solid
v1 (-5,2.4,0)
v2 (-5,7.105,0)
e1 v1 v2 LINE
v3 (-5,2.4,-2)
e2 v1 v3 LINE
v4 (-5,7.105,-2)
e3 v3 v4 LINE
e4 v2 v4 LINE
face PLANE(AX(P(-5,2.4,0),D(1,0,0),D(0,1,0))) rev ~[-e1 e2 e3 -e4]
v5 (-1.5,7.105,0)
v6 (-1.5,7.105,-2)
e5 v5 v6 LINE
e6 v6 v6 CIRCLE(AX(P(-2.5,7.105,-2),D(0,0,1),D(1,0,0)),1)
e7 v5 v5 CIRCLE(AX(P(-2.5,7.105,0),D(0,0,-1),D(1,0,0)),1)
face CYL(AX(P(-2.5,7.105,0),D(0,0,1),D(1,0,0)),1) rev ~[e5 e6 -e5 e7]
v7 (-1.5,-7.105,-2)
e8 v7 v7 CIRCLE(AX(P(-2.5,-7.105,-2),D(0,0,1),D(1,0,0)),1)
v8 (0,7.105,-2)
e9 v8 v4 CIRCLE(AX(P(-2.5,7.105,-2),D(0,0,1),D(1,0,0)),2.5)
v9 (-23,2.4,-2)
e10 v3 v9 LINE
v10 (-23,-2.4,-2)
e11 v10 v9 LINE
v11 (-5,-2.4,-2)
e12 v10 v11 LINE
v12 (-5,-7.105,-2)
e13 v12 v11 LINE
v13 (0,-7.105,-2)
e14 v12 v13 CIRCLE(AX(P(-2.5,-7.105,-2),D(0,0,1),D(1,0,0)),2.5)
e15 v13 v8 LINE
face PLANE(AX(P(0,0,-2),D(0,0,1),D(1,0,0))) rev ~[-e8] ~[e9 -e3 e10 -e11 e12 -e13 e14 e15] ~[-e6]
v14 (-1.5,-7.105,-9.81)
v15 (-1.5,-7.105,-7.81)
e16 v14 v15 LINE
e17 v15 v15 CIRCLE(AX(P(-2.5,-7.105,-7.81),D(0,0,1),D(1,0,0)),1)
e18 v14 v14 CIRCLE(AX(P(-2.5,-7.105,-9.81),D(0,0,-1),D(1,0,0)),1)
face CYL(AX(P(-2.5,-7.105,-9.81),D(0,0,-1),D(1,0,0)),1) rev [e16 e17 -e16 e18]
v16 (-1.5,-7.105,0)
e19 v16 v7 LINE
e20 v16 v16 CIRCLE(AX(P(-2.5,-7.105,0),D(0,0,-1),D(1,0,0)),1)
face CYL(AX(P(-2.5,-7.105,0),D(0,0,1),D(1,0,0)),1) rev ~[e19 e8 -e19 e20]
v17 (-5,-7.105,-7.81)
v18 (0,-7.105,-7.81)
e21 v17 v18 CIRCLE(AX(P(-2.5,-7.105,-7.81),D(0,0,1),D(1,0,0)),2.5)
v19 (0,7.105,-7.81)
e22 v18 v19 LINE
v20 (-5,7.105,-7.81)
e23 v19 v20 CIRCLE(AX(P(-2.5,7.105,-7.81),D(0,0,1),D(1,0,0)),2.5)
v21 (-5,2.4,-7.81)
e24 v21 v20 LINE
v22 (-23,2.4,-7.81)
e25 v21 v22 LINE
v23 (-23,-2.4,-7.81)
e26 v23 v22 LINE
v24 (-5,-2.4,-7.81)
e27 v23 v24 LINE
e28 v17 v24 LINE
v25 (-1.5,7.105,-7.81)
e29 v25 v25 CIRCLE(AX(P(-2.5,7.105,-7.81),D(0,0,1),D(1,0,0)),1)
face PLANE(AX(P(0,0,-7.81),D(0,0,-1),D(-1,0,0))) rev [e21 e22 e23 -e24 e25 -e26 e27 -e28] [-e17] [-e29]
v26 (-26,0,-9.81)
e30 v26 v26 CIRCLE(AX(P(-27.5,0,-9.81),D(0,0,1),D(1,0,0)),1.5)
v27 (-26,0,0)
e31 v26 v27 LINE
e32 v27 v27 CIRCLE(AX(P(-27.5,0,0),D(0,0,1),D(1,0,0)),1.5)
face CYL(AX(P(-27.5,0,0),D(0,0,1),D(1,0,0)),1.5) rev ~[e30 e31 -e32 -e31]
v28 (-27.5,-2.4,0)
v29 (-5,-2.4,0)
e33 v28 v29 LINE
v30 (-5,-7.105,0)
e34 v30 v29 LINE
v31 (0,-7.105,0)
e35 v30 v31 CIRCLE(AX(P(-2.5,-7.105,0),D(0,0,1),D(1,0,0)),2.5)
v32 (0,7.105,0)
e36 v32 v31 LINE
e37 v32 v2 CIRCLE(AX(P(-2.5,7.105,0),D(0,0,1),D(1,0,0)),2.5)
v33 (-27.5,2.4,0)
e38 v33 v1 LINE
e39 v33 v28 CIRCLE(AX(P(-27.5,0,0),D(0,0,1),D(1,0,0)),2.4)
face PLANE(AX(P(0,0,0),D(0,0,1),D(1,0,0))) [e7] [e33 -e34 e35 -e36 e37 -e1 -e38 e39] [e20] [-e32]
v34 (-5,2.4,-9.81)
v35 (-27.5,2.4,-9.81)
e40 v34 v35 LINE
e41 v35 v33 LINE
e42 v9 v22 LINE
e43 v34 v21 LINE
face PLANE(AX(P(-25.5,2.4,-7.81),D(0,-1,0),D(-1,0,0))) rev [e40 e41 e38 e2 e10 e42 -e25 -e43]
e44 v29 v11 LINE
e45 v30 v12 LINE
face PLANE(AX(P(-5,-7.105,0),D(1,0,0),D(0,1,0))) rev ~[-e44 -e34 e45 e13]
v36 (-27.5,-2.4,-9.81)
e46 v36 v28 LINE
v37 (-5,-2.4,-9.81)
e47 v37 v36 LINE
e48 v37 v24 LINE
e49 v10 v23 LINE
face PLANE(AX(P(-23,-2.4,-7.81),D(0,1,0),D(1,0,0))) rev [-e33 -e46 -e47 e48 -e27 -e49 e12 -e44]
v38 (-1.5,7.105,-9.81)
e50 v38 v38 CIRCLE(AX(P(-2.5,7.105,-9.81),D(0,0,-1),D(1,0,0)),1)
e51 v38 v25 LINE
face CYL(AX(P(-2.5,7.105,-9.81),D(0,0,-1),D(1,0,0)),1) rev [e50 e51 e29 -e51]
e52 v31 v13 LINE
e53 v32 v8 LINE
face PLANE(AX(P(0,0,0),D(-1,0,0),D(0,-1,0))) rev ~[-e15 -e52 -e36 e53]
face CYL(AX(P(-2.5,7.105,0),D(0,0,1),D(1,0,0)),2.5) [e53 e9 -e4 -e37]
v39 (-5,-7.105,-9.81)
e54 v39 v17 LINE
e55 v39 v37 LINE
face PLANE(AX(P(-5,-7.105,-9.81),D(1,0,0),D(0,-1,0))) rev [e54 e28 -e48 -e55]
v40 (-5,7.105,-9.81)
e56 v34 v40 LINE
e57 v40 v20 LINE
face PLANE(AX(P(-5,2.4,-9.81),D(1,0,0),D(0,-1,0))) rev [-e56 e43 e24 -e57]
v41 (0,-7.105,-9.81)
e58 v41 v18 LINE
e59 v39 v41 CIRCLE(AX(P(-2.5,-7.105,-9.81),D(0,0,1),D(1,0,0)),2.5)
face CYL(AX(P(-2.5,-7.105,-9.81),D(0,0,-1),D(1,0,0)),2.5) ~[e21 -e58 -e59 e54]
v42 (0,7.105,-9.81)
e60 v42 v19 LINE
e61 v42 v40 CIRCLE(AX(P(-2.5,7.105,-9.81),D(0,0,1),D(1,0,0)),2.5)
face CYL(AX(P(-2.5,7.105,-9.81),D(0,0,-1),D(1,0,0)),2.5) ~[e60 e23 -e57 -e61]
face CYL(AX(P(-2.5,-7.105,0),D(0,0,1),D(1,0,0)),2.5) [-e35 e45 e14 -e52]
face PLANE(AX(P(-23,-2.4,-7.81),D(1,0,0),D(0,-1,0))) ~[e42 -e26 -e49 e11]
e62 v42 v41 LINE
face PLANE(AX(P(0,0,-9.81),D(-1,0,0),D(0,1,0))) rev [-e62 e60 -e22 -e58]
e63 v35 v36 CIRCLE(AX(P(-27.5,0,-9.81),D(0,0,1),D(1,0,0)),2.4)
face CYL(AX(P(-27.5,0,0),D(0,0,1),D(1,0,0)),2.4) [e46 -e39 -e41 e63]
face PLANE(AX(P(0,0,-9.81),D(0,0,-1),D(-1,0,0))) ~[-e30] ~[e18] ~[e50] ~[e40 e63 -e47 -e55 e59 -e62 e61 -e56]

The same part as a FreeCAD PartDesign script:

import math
import FreeCAD as App
import Part
import Sketcher


def add_polygon(sketch, points):
    """Adds a closed chain of lines whose ends are joined by coincident constraints."""
    first, n = sketch.GeometryCount, len(points)
    for a, b in zip(points, points[1:] + points[:1]):
        sketch.addGeometry(Part.LineSegment(App.Vector(*a, 0), App.Vector(*b, 0)), False)
    for i in range(n):
        sketch.addConstraint(Sketcher.Constraint("Coincident", first + i, 2, first + (i + 1) % n, 1))

doc = App.newDocument("Part")
params = doc.addObject("Spreadsheet::Sheet", "Params")
for row, (alias, value) in enumerate([
    ("sketch1_diameter", "2 mm"),
    ("sketch1_radius", "2.5 mm"),
    ("sketch1_width", "20.5 mm"),
    ("sketch1_height", "4.8 mm"),
    ("pad1_length", "2 mm"),
    ("sketch2_width", "2.5 mm"),
    ("sketch2_height", "4.8 mm"),
    ("pad2_length", "2.905 mm"),
    ("sketch3_diameter", "3 mm"),
    ("sketch3_radius", "2.4 mm"),
    ("sketch3_width", "2 mm"),
    ("pad3_length", "4.905 mm"),
], start=1):
    params.set(f"A{row}", alias)
    params.set(f"B{row}", "=" + value)
    params.setAlias(f"B{row}", alias)

body = doc.addObject("PartDesign::Body", "Body")

# Sketch on XY plane
sketch1 = doc.addObject("Sketcher::SketchObject", "Sketch")
body.addObject(sketch1)
sketch1.AttachmentSupport = (doc.XY_Plane, [""])
sketch1.MapMode = "FlatFace"
sketch1.addGeometry([
    Part.LineSegment(App.Vector(0, -7.105, 0), App.Vector(0, 7.105, 0)),  # 0
    Part.ArcOfCircle(Part.Circle(App.Vector(-2.5, 7.105, 0), App.Vector(0, 0, 1), 2.5), math.radians(0), math.radians(180)),  # 1
    Part.LineSegment(App.Vector(-5, 7.105, 0), App.Vector(-5, 2.4, 0)),  # 2
    Part.LineSegment(App.Vector(-5, 2.4, 0), App.Vector(-25.5, 2.4, 0)),  # 3
    Part.LineSegment(App.Vector(-25.5, 2.4, 0), App.Vector(-25.5, -2.4, 0)),  # 4
    Part.LineSegment(App.Vector(-25.5, -2.4, 0), App.Vector(-5, -2.4, 0)),  # 5
    Part.LineSegment(App.Vector(-5, -2.4, 0), App.Vector(-5, -7.105, 0)),  # 6
    Part.ArcOfCircle(Part.Circle(App.Vector(-2.5, -7.105, 0), App.Vector(0, 0, 1), 2.5), math.radians(180), math.radians(360)),  # 7
    Part.Circle(App.Vector(-2.5, -7.105, 0), App.Vector(0, 0, 1), 1),  # 8
    Part.Circle(App.Vector(-2.5, 7.105, 0), App.Vector(0, 0, 1), 1),  # 9
], False)
sketch1.addConstraint([
    Sketcher.Constraint("Tangent", 0, 2, 1, 1),
    Sketcher.Constraint("Tangent", 1, 2, 2, 1),
    Sketcher.Constraint("Coincident", 2, 2, 3, 1),
    Sketcher.Constraint("Coincident", 3, 2, 4, 1),
    Sketcher.Constraint("Coincident", 4, 2, 5, 1),
    Sketcher.Constraint("Coincident", 5, 2, 6, 1),
    Sketcher.Constraint("Tangent", 6, 2, 7, 1),
    Sketcher.Constraint("Tangent", 7, 2, 0, 1),
    Sketcher.Constraint("Vertical", 0),
    Sketcher.Constraint("Vertical", 2),
    Sketcher.Constraint("Horizontal", 3),
    Sketcher.Constraint("Vertical", 4),
    Sketcher.Constraint("Horizontal", 5),
    Sketcher.Constraint("Vertical", 6),
    Sketcher.Constraint("Coincident", 8, 3, 7, 3),
    Sketcher.Constraint("Coincident", 9, 3, 1, 3),
    Sketcher.Constraint("Equal", 1, 7),
    Sketcher.Constraint("Equal", 8, 9),
    Sketcher.Constraint("Symmetric", 0, 2, 7, 2, -1, 1),
    Sketcher.Constraint("Equal", 2, 6),
    Sketcher.Constraint("Diameter", 8, 2.0),
    Sketcher.Constraint("Radius", 1, 2.5),
    Sketcher.Constraint("DistanceX", 3, 2, 3, 1, 20.5),
    Sketcher.Constraint("DistanceY", 4, 2, 4, 1, 4.8),
    Sketcher.Constraint("DistanceY", -1, 1, 1, 3, 7.105),
])
sketch1.setExpression("Constraints[20]", "Params.sketch1_diameter")
sketch1.setExpression("Constraints[21]", "Params.sketch1_radius")
sketch1.setExpression("Constraints[22]", "Params.sketch1_width")
sketch1.setExpression("Constraints[23]", "Params.sketch1_height")
pad1 = doc.addObject("PartDesign::Pad", "Pad")
body.addObject(pad1)
pad1.Profile = sketch1
pad1.setExpression("Length", "Params.pad1_length")
pad1.Reversed = True

# Sketch on XY plane
sketch2 = doc.addObject("Sketcher::SketchObject", "Sketch001")
body.addObject(sketch2)
sketch2.AttachmentSupport = (doc.XY_Plane, [""])
sketch2.MapMode = "FlatFace"
sketch2.AttachmentOffset = App.Placement(App.Vector(0, 0, -2), App.Rotation())
add_polygon(sketch2, [(-25.5, 2.4), (-23, 2.4), (-23, -2.4), (-25.5, -2.4)])  # lines 0-3
sketch2.addConstraint([
    Sketcher.Constraint("Horizontal", 0),
    Sketcher.Constraint("Vertical", 1),
    Sketcher.Constraint("Horizontal", 2),
    Sketcher.Constraint("Vertical", 3),
    Sketcher.Constraint("DistanceX", 0, 1, 0, 2, 2.5),
    Sketcher.Constraint("DistanceY", 1, 2, 1, 1, 4.8),
    Sketcher.Constraint("DistanceX", 0, 2, -1, 1, 23.0),
    Sketcher.Constraint("DistanceY", -1, 1, 0, 2, 2.4),
])
sketch2.setExpression("Constraints[8]", "Params.sketch2_width")
sketch2.setExpression("Constraints[9]", "Params.sketch2_height")
pad2 = doc.addObject("PartDesign::Pad", "Pad001")
body.addObject(pad2)
pad2.Profile = sketch2
pad2.setExpression("Length", "Params.pad2_length")
pad2.Reversed = True

# Sketch on XY plane
sketch3 = doc.addObject("Sketcher::SketchObject", "Sketch002")
body.addObject(sketch3)
sketch3.AttachmentSupport = (doc.XY_Plane, [""])
sketch3.MapMode = "FlatFace"
sketch3.addGeometry([
    Part.LineSegment(App.Vector(-25.5, 2.4, 0), App.Vector(-27.5, 2.4, 0)),  # 0
    Part.ArcOfCircle(Part.Circle(App.Vector(-27.5, 0, 0), App.Vector(0, 0, 1), 2.4), math.radians(90), math.radians(270)),  # 1
    Part.LineSegment(App.Vector(-27.5, -2.4, 0), App.Vector(-25.5, -2.4, 0)),  # 2
    Part.LineSegment(App.Vector(-25.5, -2.4, 0), App.Vector(-25.5, 0, 0)),  # 3
    Part.LineSegment(App.Vector(-25.5, 0, 0), App.Vector(-25.5, 2.4, 0)),  # 4
    Part.Circle(App.Vector(-27.5, 0, 0), App.Vector(0, 0, 1), 1.5),  # 5
], False)
sketch3.addConstraint([
    Sketcher.Constraint("Tangent", 0, 2, 1, 1),
    Sketcher.Constraint("Tangent", 1, 2, 2, 1),
    Sketcher.Constraint("Coincident", 2, 2, 3, 1),
    Sketcher.Constraint("Coincident", 3, 2, 4, 1),
    Sketcher.Constraint("Coincident", 4, 2, 0, 1),
    Sketcher.Constraint("Horizontal", 0),
    Sketcher.Constraint("Horizontal", 2),
    Sketcher.Constraint("Vertical", 3),
    Sketcher.Constraint("Vertical", 4),
    Sketcher.Constraint("Coincident", 5, 3, 1, 3),
    Sketcher.Constraint("PointOnObject", 1, 3, -1),
    Sketcher.Constraint("PointOnObject", 3, 2, -1),
    Sketcher.Constraint("Diameter", 5, 3.0),
    Sketcher.Constraint("Radius", 1, 2.4),
    Sketcher.Constraint("DistanceX", 0, 2, 0, 1, 2.0),
    Sketcher.Constraint("DistanceX", 1, 3, -1, 1, 27.5),
])
sketch3.setExpression("Constraints[12]", "Params.sketch3_diameter")
sketch3.setExpression("Constraints[13]", "Params.sketch3_radius")
sketch3.setExpression("Constraints[14]", "Params.sketch3_width")
pad3 = doc.addObject("PartDesign::Pad", "Pad002")
body.addObject(pad3)
pad3.Profile = sketch3
pad3.setExpression("Length", "Params.pad3_length")
pad3.Reversed = True
doc.recompute()

datumplane = doc.addObject("PartDesign::Plane", "DatumPlane")
body.addObject(datumplane)
datumplane.AttachmentSupport = (doc.XY_Plane, [""])
datumplane.MapMode = "FlatFace"
datumplane.AttachmentOffset = App.Placement(App.Vector(0, 0, -4.905), App.Rotation())
mirrored = doc.addObject("PartDesign::Mirrored", "Mirrored")
body.addObject(mirrored)
mirrored.Originals = [pad1, pad2, pad3]
mirrored.MirrorPlane = (datumplane, [""])
body.Tip = mirrored

doc.recompute()
